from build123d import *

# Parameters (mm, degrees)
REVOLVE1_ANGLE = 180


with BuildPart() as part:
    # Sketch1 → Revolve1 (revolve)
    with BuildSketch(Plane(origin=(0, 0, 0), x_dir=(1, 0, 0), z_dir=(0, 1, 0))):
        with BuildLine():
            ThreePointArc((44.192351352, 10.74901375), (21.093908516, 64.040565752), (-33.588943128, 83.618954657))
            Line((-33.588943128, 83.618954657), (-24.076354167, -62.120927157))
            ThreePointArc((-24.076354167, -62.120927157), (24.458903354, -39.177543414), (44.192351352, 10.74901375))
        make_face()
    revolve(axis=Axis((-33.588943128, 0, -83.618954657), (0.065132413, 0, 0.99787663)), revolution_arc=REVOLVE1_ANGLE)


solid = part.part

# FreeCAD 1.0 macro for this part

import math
import FreeCAD as App
import Part
import Sketcher

V = App.Vector
Q = App.Units.Quantity

doc = App.newDocument("Part")
params = doc.addObject("Spreadsheet::Sheet", "Params")
for row, (alias, value) in enumerate([
    ("sketch1_radius", "2.875 in"),
    ("revolution_angle", "180 deg"),
], start=1):
    params.set(f"A{row}", alias)
    params.set(f"B{row}", "=" + value)
    params.setAlias(f"B{row}", alias)

body = doc.addObject("PartDesign::Body", "Body")

sketch1 = body.newObject("Sketcher::SketchObject", "Sketch")
sketch1.AttachmentSupport = (doc.getObject("XZ_Plane"), [""])
sketch1.MapMode = "FlatFace"
sketch1.addGeometry([
    Part.ArcOfCircle(Part.Circle(V(-29, -11, 0), V(0, 0, 1), 73), math.radians(-94), math.radians(0)),
    Part.LineSegment(V(-34, -84, 0), V(-24, 62, 0)),
    Part.ArcOfCircle(Part.Circle(V(-29, -11, 0), V(0, 0, 1), 73), math.radians(0), math.radians(86)),
], False)
sketch1.addGeometry(Part.LineSegment(V(-34, -84, 0), V(-24, 62, 0)), True)
sketch1.addConstraint([
    Sketcher.Constraint("Coincident", 0, 1, 1, 1),
    Sketcher.Constraint("Coincident", 1, 2, 2, 2),
    Sketcher.Constraint("Tangent", 2, 1, 0, 2),
    Sketcher.Constraint("Coincident", 3, 1, 0, 1),
    Sketcher.Constraint("Coincident", 3, 2, 1, 2),
    Sketcher.Constraint("Equal", 0, 2),
    Sketcher.Constraint("Horizontal", 0, 3, 2, 1),
    Sketcher.Constraint("Radius", 0, Q("2.875 in")),
    Sketcher.Constraint("DistanceX", 0, 3, -1, 1, Q("28.832649 mm")),
    Sketcher.Constraint("DistanceY", 0, 1, 0, 3, Q("72.869941 mm")),
    Sketcher.Constraint("DistanceY", 2, 3, 1, 2, Q("72.869941 mm")),
    Sketcher.Constraint("DistanceY", 0, 3, -1, 1, Q("10.749014 mm")),
])
sketch1.setExpression("Constraints[7]", "Params.sketch1_radius")
revolution = body.newObject("PartDesign::Revolution", "Revolution")
revolution.Profile = sketch1
revolution.ReferenceAxis = (sketch1, ["Axis0"])
revolution.setExpression("Angle", "Params.revolution_angle")

doc.recompute()
